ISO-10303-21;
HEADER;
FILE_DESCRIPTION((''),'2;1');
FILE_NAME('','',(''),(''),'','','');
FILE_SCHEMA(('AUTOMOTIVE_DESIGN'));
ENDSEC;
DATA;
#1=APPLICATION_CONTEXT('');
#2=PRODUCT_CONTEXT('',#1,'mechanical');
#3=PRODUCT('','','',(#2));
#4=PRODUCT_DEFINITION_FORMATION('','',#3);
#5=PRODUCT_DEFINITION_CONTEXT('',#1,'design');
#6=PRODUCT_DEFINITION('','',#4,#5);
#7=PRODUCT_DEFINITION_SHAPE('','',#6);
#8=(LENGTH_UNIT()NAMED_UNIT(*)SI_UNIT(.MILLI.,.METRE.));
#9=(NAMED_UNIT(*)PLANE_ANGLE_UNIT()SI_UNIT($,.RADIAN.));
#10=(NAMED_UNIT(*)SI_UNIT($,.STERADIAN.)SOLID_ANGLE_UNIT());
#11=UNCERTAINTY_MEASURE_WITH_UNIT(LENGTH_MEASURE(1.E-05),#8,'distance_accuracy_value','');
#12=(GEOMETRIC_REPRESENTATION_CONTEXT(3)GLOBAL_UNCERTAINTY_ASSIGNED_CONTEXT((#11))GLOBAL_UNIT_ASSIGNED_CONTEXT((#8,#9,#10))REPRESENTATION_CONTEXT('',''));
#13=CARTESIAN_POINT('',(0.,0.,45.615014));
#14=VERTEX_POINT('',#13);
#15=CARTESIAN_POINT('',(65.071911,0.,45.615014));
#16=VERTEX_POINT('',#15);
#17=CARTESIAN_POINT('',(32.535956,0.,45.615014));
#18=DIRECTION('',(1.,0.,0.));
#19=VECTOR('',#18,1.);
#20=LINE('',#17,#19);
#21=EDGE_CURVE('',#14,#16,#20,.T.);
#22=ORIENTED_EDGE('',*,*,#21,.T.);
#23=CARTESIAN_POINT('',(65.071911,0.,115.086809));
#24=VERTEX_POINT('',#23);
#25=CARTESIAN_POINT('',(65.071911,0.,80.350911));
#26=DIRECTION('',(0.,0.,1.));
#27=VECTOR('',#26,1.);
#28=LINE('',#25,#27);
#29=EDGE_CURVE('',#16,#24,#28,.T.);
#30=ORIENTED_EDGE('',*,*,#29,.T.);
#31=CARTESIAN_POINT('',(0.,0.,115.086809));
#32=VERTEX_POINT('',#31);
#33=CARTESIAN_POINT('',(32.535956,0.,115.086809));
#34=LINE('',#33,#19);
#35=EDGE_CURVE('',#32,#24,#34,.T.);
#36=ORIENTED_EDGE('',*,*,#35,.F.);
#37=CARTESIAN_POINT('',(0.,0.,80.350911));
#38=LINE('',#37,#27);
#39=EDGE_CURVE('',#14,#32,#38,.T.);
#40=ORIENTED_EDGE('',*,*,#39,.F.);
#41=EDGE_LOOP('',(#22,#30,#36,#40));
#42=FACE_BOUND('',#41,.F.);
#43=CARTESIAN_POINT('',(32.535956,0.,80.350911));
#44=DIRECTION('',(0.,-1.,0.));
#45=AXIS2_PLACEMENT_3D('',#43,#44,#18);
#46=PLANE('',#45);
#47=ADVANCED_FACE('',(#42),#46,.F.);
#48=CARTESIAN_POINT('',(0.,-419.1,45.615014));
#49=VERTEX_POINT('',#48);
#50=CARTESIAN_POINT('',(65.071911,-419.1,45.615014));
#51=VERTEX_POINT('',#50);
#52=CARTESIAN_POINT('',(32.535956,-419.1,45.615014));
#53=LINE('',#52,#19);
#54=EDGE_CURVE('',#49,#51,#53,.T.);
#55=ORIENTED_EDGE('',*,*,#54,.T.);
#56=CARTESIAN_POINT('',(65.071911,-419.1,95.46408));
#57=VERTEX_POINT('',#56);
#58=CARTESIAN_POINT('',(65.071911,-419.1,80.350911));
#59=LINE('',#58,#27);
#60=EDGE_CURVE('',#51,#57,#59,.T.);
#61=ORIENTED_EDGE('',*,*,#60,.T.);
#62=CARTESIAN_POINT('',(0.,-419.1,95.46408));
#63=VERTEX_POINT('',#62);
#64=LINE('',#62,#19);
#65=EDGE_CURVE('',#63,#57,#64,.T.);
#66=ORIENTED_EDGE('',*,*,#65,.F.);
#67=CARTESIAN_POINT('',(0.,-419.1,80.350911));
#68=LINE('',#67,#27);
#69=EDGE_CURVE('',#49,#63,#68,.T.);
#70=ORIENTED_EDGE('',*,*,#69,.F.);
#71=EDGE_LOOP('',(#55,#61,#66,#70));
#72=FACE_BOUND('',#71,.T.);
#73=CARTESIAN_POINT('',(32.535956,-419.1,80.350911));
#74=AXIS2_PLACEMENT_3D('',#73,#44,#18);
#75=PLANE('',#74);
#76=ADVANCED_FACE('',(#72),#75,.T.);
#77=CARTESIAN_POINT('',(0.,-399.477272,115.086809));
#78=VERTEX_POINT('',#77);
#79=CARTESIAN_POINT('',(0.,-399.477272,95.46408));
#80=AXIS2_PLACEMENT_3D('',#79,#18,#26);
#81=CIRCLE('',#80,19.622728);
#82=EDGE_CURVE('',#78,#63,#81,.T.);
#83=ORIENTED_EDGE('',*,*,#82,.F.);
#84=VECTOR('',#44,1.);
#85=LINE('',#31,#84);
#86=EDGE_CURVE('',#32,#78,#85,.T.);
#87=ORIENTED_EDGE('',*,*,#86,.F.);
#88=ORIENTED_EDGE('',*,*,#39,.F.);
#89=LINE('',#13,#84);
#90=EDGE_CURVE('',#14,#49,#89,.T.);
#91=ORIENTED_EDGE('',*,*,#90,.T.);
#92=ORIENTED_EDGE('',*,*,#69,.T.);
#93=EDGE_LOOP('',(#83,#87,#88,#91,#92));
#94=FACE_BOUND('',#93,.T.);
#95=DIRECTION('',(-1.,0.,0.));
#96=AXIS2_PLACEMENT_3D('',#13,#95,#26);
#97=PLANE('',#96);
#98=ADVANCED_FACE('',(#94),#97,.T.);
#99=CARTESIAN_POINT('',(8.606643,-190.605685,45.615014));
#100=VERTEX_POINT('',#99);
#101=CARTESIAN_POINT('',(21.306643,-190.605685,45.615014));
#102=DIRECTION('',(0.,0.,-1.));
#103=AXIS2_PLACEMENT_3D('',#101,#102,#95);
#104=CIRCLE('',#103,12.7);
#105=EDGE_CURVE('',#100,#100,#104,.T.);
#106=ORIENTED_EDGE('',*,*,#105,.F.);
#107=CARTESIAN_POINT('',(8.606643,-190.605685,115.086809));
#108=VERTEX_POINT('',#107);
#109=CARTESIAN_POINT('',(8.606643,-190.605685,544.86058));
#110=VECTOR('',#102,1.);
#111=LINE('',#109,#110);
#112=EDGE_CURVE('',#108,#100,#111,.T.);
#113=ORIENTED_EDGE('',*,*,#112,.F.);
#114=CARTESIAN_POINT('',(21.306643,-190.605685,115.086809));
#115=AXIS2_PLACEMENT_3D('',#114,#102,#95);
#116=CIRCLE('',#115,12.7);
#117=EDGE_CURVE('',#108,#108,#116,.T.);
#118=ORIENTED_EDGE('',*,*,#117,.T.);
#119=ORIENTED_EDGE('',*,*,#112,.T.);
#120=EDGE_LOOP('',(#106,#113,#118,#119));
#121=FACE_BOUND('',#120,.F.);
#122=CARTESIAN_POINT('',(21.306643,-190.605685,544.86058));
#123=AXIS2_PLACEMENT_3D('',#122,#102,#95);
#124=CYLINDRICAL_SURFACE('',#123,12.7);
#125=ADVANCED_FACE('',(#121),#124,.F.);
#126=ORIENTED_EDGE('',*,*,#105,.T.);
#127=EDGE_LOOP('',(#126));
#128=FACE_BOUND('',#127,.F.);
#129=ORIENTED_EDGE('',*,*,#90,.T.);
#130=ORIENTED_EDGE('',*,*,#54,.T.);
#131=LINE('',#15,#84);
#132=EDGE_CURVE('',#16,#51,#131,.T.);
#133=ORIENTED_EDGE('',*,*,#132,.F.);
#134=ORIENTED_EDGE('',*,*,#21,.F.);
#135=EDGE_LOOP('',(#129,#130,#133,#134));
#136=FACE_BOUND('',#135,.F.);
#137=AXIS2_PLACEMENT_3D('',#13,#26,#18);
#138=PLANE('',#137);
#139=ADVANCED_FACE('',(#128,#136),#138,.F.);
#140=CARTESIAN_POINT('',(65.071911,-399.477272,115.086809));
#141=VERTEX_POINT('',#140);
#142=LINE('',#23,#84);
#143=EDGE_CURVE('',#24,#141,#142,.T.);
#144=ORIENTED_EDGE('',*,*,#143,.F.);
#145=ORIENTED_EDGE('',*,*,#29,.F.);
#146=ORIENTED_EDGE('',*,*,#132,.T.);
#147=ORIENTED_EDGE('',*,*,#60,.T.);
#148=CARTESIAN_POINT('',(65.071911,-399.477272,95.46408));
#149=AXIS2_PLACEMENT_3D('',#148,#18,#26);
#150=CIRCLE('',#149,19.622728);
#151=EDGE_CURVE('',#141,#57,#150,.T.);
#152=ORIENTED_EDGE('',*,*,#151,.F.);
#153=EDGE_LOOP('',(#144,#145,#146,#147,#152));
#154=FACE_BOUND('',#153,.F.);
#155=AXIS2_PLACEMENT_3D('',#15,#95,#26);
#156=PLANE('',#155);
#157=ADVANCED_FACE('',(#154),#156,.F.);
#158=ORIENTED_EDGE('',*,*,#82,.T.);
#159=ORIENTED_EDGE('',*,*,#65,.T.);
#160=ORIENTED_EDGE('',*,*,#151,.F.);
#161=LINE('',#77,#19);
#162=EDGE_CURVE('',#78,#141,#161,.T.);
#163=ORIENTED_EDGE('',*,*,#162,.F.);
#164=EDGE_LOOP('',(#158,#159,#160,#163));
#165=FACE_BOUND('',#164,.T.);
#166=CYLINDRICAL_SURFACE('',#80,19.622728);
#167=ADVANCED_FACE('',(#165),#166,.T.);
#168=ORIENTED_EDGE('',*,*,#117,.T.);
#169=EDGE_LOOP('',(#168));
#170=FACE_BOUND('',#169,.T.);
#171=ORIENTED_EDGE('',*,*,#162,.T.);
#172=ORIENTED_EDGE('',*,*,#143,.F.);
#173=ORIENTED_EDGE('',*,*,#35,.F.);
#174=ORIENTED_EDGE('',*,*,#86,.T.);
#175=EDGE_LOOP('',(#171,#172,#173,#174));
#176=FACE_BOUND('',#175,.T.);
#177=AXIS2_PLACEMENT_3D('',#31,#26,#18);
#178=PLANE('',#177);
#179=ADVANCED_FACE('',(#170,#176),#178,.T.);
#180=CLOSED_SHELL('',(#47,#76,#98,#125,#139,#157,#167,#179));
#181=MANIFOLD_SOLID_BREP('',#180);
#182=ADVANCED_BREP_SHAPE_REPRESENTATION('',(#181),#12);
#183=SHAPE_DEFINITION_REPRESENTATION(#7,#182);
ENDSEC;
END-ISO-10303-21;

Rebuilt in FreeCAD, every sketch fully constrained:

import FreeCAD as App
import Part
import Sketcher

V = App.Vector
Q = App.Units.Quantity


def edges_at(feature, points):
    """Names of the edges that pass closest to the given points."""
    edges = feature.Shape.Edges
    near = lambda p: min(range(len(edges)), key=lambda i: edges[i].distToShape(Part.Vertex(*p))[0])
    return sorted({f"Edge{near(p) + 1}" for p in points})

doc = App.newDocument("Part")
params = doc.addObject("Spreadsheet::Sheet", "Params")
for row, (alias, value) in enumerate([
    ("pad1_length", "16.5 in"),
    ("fillet_radius", "19.622728 mm"),
    ("sketch2_diameter", "1 in"),
    ("hole_diameter", "1 in"),
], start=1):
    params.set(f"A{row}", alias)
    params.set(f"B{row}", "=" + value)
    params.setAlias(f"B{row}", alias)

body = doc.addObject("PartDesign::Body", "Body")

# Sketch on XZ plane
sketch1 = body.newObject("Sketcher::SketchObject", "Sketch")
sketch1.AttachmentSupport = (doc.getObject("XZ_Plane"), [""])
sketch1.MapMode = "FlatFace"
sketch1.addGeometry(Part.LineSegment(V(0, 115.086809, 0), V(0, 45.615014, 0)), False)
sketch1.addGeometry(Part.LineSegment(V(0, 45.615014, 0), V(65.071911, 45.615014, 0)), False)
sketch1.addGeometry(Part.LineSegment(V(65.071911, 45.615014, 0), V(65.071911, 115.086809, 0)), False)
sketch1.addGeometry(Part.LineSegment(V(65.071911, 115.086809, 0), V(0, 115.086809, 0)), False)
sketch1.addConstraint(Sketcher.Constraint("Coincident", 0, 2, 1, 1))
sketch1.addConstraint(Sketcher.Constraint("Coincident", 1, 2, 2, 1))
sketch1.addConstraint(Sketcher.Constraint("Coincident", 2, 2, 3, 1))
sketch1.addConstraint(Sketcher.Constraint("Coincident", 3, 2, 0, 1))
sketch1.addConstraint(Sketcher.Constraint("Vertical", 0))
sketch1.addConstraint(Sketcher.Constraint("Horizontal", 1))
sketch1.addConstraint(Sketcher.Constraint("Vertical", 2))
sketch1.addConstraint(Sketcher.Constraint("Horizontal", 3))
sketch1.addConstraint(Sketcher.Constraint("PointOnObject", 0, 2, -2))
sketch1.addConstraint(Sketcher.Constraint("DistanceX", 1, 1, 1, 2, 65.071911))
sketch1.addConstraint(Sketcher.Constraint("DistanceY", 0, 2, 0, 1, 69.471795))
sketch1.addConstraint(Sketcher.Constraint("DistanceY", -1, 1, 2, 2, 115.086809))
pad1 = body.newObject("PartDesign::Pad", "Pad")
pad1.Profile = sketch1
pad1.setExpression("Length", "Params.pad1_length")
doc.recompute()

fillet = body.newObject("PartDesign::Fillet", "Fillet")
fillet.Base = (pad1, edges_at(pad1, [(32.536, -419.1, 115.087)]))
fillet.setExpression("Radius", "Params.fillet_radius")

# Sketch on XY plane
sketch2 = body.newObject("Sketcher::SketchObject", "Sketch001")
sketch2.AttachmentSupport = (doc.getObject("XY_Plane"), [""])
sketch2.MapMode = "FlatFace"
sketch2.AttachmentOffset = App.Placement(V(0, 0, 115.086809), App.Rotation())
sketch2.addGeometry(Part.Circle(V(21.306643, -190.605685, 0), V(0, 0, 1), 12.7), False)
sketch2.addConstraint(Sketcher.Constraint("Diameter", 0, Q("1 in")))
sketch2.addConstraint(Sketcher.Constraint("DistanceX", -1, 1, 0, 3, 21.306643))
sketch2.addConstraint(Sketcher.Constraint("DistanceY", 0, 3, -1, 1, 190.605685))
sketch2.setExpression("Constraints[0]", "Params.sketch2_diameter")
doc.recompute()
hole = body.newObject("PartDesign::Hole", "Hole")
hole.Profile = sketch2
hole.ThreadType = "None"
hole.setExpression("Diameter", "Params.hole_diameter")
hole.DepthType = "ThroughAll"

doc.recompute()
